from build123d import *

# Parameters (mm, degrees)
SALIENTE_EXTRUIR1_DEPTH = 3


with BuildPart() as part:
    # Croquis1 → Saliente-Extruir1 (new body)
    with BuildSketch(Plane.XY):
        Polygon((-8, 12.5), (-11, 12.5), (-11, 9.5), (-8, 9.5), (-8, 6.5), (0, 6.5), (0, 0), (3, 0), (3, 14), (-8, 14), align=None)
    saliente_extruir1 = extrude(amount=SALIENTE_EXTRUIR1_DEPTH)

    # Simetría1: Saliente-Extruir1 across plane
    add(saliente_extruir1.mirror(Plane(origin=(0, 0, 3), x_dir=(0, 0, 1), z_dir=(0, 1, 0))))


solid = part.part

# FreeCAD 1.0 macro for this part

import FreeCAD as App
import Part
import Sketcher
Q = App.Units.Quantity

doc = App.newDocument("Part")
body = doc.addObject("PartDesign::Body", "Body")

# Sketch on XY plane
sketch1 = body.newObject("Sketcher::SketchObject", "Sketch")
sketch1.AttachmentSupport = (doc.getObject("XY_Plane"), [""])
sketch1.MapMode = "FlatFace"
sketch1.addGeometry(Part.LineSegment(App.Vector(-8, 12.5, 0), App.Vector(-11, 12.5, 0)), False)
sketch1.addGeometry(Part.LineSegment(App.Vector(-11, 12.5, 0), App.Vector(-11, 9.5, 0)), False)
sketch1.addGeometry(Part.LineSegment(App.Vector(-11, 9.5, 0), App.Vector(-8, 9.5, 0)), False)
sketch1.addGeometry(Part.LineSegment(App.Vector(-8, 9.5, 0), App.Vector(-8, 6.5, 0)), False)
sketch1.addGeometry(Part.LineSegment(App.Vector(-8, 6.5, 0), App.Vector(0, 6.5, 0)), False)
sketch1.addGeometry(Part.LineSegment(App.Vector(0, 6.5, 0), App.Vector(0, 0, 0)), False)
sketch1.addGeometry(Part.LineSegment(App.Vector(0, 0, 0), App.Vector(3, 0, 0)), False)
sketch1.addGeometry(Part.LineSegment(App.Vector(3, 0, 0), App.Vector(3, 14, 0)), False)
sketch1.addGeometry(Part.LineSegment(App.Vector(3, 14, 0), App.Vector(-8, 14, 0)), False)
sketch1.addGeometry(Part.LineSegment(App.Vector(-8, 14, 0), App.Vector(-8, 12.5, 0)), False)
sketch1.addConstraint(Sketcher.Constraint("Coincident", 0, 2, 1, 1))
sketch1.addConstraint(Sketcher.Constraint("Coincident", 1, 2, 2, 1))
sketch1.addConstraint(Sketcher.Constraint("Coincident", 2, 2, 3, 1))
sketch1.addConstraint(Sketcher.Constraint("Coincident", 3, 2, 4, 1))
sketch1.addConstraint(Sketcher.Constraint("Coincident", 4, 2, 5, 1))
sketch1.addConstraint(Sketcher.Constraint("Coincident", 5, 2, 6, 1))
sketch1.addConstraint(Sketcher.Constraint("Coincident", 6, 2, 7, 1))
sketch1.addConstraint(Sketcher.Constraint("Coincident", 7, 2, 8, 1))
sketch1.addConstraint(Sketcher.Constraint("Coincident", 8, 2, 9, 1))
sketch1.addConstraint(Sketcher.Constraint("Coincident", 9, 2, 0, 1))
sketch1.addConstraint(Sketcher.Constraint("Horizontal", 0))
sketch1.addConstraint(Sketcher.Constraint("Vertical", 1))
sketch1.addConstraint(Sketcher.Constraint("Horizontal", 2))
sketch1.addConstraint(Sketcher.Constraint("Vertical", 3))
sketch1.addConstraint(Sketcher.Constraint("Horizontal", 4))
sketch1.addConstraint(Sketcher.Constraint("Vertical", 5))
sketch1.addConstraint(Sketcher.Constraint("Horizontal", 6))
sketch1.addConstraint(Sketcher.Constraint("Vertical", 7))
sketch1.addConstraint(Sketcher.Constraint("Horizontal", 8))
sketch1.addConstraint(Sketcher.Constraint("Vertical", 9))
sketch1.addConstraint(Sketcher.Constraint("Coincident", 5, 2, -1, 1))
sketch1.addConstraint(Sketcher.Constraint("Vertical", 3, 2, 8, 2))
sketch1.addConstraint(Sketcher.Constraint("Equal", 2, 6))
sketch1.addConstraint(Sketcher.Constraint("Equal", 6, 1))
sketch1.addConstraint(Sketcher.Constraint("Equal", 1, 3))
sketch1.addConstraint(Sketcher.Constraint("DistanceX", 0, 2, 0, 1, Q("3 mm")))
sketch1.addConstraint(Sketcher.Constraint("DistanceX", 4, 1, 4, 2, Q("8 mm")))
sketch1.addConstraint(Sketcher.Constraint("DistanceY", 7, 1, 7, 2, Q("14 mm")))
sketch1.addConstraint(Sketcher.Constraint("DistanceY", 5, 2, 5, 1, Q("6.5 mm")))
pad1 = body.newObject("PartDesign::Pad", "Pad")
pad1.Profile = sketch1
pad1.Length = 3
doc.recompute()

mirrored = body.newObject("PartDesign::Mirrored", "Mirrored")
mirrored.Originals = [pad1]
mirrored.MirrorPlane = (doc.getObject("XZ_Plane"), [""])
body.Tip = mirrored

doc.recompute()
